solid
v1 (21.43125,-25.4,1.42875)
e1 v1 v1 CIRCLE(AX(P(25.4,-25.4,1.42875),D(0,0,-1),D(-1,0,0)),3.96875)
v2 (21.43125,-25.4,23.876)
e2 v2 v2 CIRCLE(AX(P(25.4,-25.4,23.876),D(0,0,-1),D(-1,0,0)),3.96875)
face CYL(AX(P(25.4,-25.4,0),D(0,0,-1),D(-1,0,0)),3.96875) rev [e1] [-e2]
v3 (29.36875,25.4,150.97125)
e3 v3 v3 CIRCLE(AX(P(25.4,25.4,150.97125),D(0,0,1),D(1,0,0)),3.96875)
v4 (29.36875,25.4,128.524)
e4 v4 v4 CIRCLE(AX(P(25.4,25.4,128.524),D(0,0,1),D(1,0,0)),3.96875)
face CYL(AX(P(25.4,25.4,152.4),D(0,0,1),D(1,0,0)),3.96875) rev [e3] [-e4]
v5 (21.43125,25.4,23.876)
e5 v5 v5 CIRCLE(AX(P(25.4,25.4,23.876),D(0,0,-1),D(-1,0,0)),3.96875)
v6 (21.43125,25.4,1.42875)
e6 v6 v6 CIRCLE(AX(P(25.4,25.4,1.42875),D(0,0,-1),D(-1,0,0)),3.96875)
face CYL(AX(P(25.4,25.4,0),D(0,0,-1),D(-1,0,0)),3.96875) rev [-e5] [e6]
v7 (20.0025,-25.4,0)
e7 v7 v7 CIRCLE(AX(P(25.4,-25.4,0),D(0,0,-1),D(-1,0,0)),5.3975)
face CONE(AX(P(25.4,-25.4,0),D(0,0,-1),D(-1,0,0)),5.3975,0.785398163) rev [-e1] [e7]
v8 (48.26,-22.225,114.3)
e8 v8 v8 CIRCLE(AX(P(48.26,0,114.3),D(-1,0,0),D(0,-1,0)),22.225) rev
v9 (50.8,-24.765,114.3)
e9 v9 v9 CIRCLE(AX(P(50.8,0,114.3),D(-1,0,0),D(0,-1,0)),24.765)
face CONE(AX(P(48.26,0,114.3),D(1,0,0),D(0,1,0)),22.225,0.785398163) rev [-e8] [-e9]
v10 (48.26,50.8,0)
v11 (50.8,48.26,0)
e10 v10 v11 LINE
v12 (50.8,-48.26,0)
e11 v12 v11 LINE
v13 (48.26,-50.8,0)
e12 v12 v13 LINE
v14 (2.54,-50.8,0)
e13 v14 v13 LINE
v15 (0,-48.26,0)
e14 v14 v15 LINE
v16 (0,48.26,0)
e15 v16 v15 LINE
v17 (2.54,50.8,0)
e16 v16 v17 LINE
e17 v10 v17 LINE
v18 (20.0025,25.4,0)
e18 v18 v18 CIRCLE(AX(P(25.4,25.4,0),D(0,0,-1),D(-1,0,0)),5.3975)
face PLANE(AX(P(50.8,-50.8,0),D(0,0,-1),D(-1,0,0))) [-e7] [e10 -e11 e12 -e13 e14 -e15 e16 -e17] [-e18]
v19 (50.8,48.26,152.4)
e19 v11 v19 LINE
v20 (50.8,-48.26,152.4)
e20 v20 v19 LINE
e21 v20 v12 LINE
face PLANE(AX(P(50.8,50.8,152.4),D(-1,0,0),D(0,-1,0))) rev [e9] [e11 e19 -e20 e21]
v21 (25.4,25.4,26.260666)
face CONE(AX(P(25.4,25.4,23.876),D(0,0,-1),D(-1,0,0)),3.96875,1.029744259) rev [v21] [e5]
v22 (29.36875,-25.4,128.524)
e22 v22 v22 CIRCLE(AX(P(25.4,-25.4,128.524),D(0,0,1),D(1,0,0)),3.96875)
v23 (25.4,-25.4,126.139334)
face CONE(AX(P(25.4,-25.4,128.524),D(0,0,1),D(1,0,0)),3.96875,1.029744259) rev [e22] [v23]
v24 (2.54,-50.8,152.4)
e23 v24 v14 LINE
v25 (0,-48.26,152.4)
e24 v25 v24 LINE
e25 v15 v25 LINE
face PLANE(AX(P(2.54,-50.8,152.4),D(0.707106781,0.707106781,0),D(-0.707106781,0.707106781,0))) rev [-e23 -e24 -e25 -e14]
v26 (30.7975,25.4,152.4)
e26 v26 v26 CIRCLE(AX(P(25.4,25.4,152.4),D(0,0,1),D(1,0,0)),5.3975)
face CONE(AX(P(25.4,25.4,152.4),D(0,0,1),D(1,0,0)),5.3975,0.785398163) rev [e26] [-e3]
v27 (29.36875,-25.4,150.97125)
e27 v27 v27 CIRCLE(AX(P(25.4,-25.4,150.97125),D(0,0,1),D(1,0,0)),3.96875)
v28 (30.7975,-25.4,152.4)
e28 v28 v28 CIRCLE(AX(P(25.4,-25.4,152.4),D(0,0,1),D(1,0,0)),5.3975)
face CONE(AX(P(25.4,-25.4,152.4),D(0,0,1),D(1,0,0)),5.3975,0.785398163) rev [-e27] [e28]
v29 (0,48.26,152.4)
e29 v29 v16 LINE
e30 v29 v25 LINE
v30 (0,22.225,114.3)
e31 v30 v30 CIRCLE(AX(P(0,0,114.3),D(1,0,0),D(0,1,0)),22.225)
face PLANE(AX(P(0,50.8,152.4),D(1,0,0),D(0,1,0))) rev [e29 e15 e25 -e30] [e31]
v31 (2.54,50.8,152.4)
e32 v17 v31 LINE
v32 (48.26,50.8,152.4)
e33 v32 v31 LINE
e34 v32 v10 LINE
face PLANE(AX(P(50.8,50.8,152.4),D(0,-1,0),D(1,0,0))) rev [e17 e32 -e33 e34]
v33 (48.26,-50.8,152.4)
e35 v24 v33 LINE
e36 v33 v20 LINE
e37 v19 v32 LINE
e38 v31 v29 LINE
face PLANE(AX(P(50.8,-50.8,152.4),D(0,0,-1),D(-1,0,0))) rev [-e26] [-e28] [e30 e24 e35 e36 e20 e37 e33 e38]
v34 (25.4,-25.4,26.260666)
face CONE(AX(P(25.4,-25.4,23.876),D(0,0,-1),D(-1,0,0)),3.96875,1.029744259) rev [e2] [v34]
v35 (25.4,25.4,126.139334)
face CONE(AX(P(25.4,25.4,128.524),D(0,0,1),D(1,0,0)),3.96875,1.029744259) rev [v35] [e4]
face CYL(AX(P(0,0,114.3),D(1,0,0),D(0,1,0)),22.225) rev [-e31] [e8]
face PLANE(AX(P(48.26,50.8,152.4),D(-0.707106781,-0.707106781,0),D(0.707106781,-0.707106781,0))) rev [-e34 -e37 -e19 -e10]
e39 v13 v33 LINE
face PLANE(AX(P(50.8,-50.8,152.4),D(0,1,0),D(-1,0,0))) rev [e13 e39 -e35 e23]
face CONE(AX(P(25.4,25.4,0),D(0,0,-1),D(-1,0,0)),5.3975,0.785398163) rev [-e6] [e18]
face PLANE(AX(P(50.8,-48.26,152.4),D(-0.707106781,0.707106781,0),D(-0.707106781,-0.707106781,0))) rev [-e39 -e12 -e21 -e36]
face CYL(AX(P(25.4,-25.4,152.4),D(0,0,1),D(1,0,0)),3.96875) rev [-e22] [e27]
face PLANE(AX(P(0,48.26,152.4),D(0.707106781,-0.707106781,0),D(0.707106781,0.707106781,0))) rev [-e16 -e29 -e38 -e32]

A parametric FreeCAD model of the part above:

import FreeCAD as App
import Part
import Sketcher

V = App.Vector
Q = App.Units.Quantity


def edges_at(feature, points):
    """Names of the edges that pass closest to the given points."""
    edges = feature.Shape.Edges
    near = lambda p: min(range(len(edges)), key=lambda i: edges[i].distToShape(Part.Vertex(*p))[0])
    return sorted({f"Edge{near(p) + 1}" for p in points})


def add_polygon(sketch, points):
    """Adds a closed chain of lines whose ends are joined by coincident constraints."""
    first, n = sketch.GeometryCount, len(points)
    for a, b in zip(points, points[1:] + points[:1]):
        sketch.addGeometry(Part.LineSegment(App.Vector(*a, 0), App.Vector(*b, 0)), False)
    for i in range(n):
        sketch.addConstraint(Sketcher.Constraint("Coincident", first + i, 2, first + (i + 1) % n, 1))

doc = App.newDocument("Part")
body = doc.addObject("PartDesign::Body", "Body")

# Sketch on XY plane
sketch1 = doc.addObject("Sketcher::SketchObject", "Sketch")
body.addObject(sketch1)
sketch1.AttachmentSupport = (doc.XY_Plane, [""])
sketch1.MapMode = "FlatFace"
add_polygon(sketch1, [(0, 51), (0, -51), (51, -51), (51, 51)])  # lines 0-3
sketch1.addConstraint([
    Sketcher.Constraint("Vertical", 0),
    Sketcher.Constraint("Horizontal", 1),
    Sketcher.Constraint("Vertical", 2),
    Sketcher.Constraint("Horizontal", 3),
    Sketcher.Constraint("Symmetric", 0, 2, 3, 2, -1, 1),
    Sketcher.Constraint("DistanceX", 1, 1, 1, 2, Q("2 in")),
    Sketcher.Constraint("DistanceY", 0, 2, 0, 1, Q("4 in")),
])
pad1 = doc.addObject("PartDesign::Pad", "Pad")
body.addObject(pad1)
pad1.Profile = sketch1
pad1.Length = Q("6 in")

# Sketch on YZ plane
sketch2 = doc.addObject("Sketcher::SketchObject", "Sketch001")
body.addObject(sketch2)
sketch2.AttachmentSupport = (doc.YZ_Plane, [""])
sketch2.MapMode = "FlatFace"
sketch2.AttachmentOffset = App.Placement(V(0, 0, 2 * 25.4), App.Rotation())
sketch2.addGeometry(Part.Circle(V(0, 114, 0), V(0, 0, 1), 22), False)
sketch2.addConstraint([
    Sketcher.Constraint("PointOnObject", 0, 3, -2),
    Sketcher.Constraint("Diameter", 0, Q("1.75 in")),
    Sketcher.Constraint("DistanceY", -1, 1, 0, 3, Q("4.5 in")),
])
pocket1 = doc.addObject("PartDesign::Pocket", "Pocket")
body.addObject(pocket1)
pocket1.Profile = sketch2
pocket1.Type = "ThroughAll"
doc.recompute()

chamfer = doc.addObject("PartDesign::Chamfer", "Chamfer")
body.addObject(chamfer)
chamfer.Base = (pocket1, edges_at(pocket1, [
    (50.8, -22.225, 114.3),
    (50.8, -50.8, 76.2),
    (0, -50.8, 76.2),
    (0, 50.8, 76.2),
    (50.8, 50.8, 76.2),
]))
chamfer.Size = Q("0.1 in")

# Sketch on YZ plane
sketch3 = doc.addObject("Sketcher::SketchObject", "Sketch002")
body.addObject(sketch3)
sketch3.AttachmentSupport = (doc.YZ_Plane, [""])
sketch3.MapMode = "FlatFace"
sketch3.AttachmentOffset = App.Placement(V(0, 0, 1 * 25.4), App.Rotation())
add_polygon(sketch3, [(-25.4, 26.3), (-25.4, 0), (-20, 0), (-21.4, 1.4), (-21.4, 23.9)])  # lines 0-4
sketch3.addGeometry(Part.LineSegment(V(-25.4, 0, 0), V(-25.4, 26.3, 0)), True)  # axis
sketch3.addConstraint([
    Sketcher.Constraint("Vertical", 0),
    Sketcher.Constraint("Horizontal", 1),
    Sketcher.Constraint("Vertical", 3),
    Sketcher.Constraint("Vertical", 5),
    Sketcher.Constraint("Coincident", 5, 1, 0, 2),
    Sketcher.Constraint("PointOnObject", 0, 2, -1),
    Sketcher.Constraint("Equal", 0, 5),
    Sketcher.Constraint("DistanceX", 0, 2, -1, 1, Q("1 in")),
    Sketcher.Constraint("Angle", 2, Q("135 deg")),
    Sketcher.Constraint("Angle", 4, Q("149 deg")),
    Sketcher.Constraint("DistanceY", -1, 1, 3, 2, Q("0.94 in")),
    Sketcher.Constraint("DistanceX", 1, 1, 1, 2, Q("0.2125 in")),
    Sketcher.Constraint("DistanceX", 2, 2, -1, 1, Q("0.84375 in")),
])
groove = doc.addObject("PartDesign::Groove", "Groove")
body.addObject(groove)
groove.Profile = sketch3
groove.ReferenceAxis = (sketch3, ["Axis0"])
groove.Angle = 360
doc.recompute()

linearpattern = doc.addObject("PartDesign::LinearPattern", "LinearPattern")
body.addObject(linearpattern)
linearpattern.Originals = [groove]
linearpattern.Direction = (doc.Y_Axis, [""])
linearpattern.Mode = "offset"
linearpattern.Offset = Q("2 in")
linearpattern.Occurrences = 2
body.Tip = linearpattern
doc.recompute()

datumplane = doc.addObject("PartDesign::Plane", "DatumPlane")
body.addObject(datumplane)
datumplane.AttachmentSupport = (doc.XY_Plane, [""])
datumplane.MapMode = "FlatFace"
datumplane.AttachmentOffset = App.Placement(V(0, 0, 3 * 25.4), App.Rotation())
mirrored = doc.addObject("PartDesign::Mirrored", "Mirrored")
body.addObject(mirrored)
mirrored.Originals = [groove]
mirrored.MirrorPlane = (datumplane, [""])
body.Tip = mirrored

# Sketch on YZ plane
sketch4 = doc.addObject("Sketcher::SketchObject", "Sketch003")
body.addObject(sketch4)
sketch4.AttachmentSupport = (doc.YZ_Plane, [""])
sketch4.MapMode = "FlatFace"
sketch4.AttachmentOffset = App.Placement(V(0, 0, 1 * 25.4), App.Rotation())
add_polygon(sketch4, [(25.4, 152.4), (25.4, 126.1), (29.4, 128.5), (29.4, 151), (30.8, 152.4)])  # lines 0-4
sketch4.addGeometry(Part.LineSegment(V(25.4, 126.1, 0), V(25.4, 152.4, 0)), True)  # axis
sketch4.addConstraint([
    Sketcher.Constraint("Vertical", 0),
    Sketcher.Constraint("Vertical", 2),
    Sketcher.Constraint("Horizontal", 4),
    Sketcher.Constraint("Vertical", 5),
    Sketcher.Constraint("Coincident", 5, 1, 0, 2),
    Sketcher.Constraint("Horizontal", 3, 2, 5, 2),
    Sketcher.Constraint("DistanceX", -1, 1, 0, 2, Q("1 in")),
    Sketcher.Constraint("DistanceY", -1, 1, 3, 2, Q("6 in")),
    Sketcher.Constraint("Angle", 1, Q("31 deg")),
    Sketcher.Constraint("Angle", 3, Q("45 deg")),
    Sketcher.Constraint("DistanceY", -1, 1, 1, 2, Q("5.06 in")),
    Sketcher.Constraint("DistanceX", 4, 2, 4, 1, Q("0.2125 in")),
    Sketcher.Constraint("DistanceX", -1, 1, 1, 2, Q("1.15625 in")),
])
groove2 = doc.addObject("PartDesign::Groove", "Groove001")
body.addObject(groove2)
groove2.Profile = sketch4
groove2.ReferenceAxis = (sketch4, ["Axis0"])
groove2.Angle = 360

doc.recompute()
